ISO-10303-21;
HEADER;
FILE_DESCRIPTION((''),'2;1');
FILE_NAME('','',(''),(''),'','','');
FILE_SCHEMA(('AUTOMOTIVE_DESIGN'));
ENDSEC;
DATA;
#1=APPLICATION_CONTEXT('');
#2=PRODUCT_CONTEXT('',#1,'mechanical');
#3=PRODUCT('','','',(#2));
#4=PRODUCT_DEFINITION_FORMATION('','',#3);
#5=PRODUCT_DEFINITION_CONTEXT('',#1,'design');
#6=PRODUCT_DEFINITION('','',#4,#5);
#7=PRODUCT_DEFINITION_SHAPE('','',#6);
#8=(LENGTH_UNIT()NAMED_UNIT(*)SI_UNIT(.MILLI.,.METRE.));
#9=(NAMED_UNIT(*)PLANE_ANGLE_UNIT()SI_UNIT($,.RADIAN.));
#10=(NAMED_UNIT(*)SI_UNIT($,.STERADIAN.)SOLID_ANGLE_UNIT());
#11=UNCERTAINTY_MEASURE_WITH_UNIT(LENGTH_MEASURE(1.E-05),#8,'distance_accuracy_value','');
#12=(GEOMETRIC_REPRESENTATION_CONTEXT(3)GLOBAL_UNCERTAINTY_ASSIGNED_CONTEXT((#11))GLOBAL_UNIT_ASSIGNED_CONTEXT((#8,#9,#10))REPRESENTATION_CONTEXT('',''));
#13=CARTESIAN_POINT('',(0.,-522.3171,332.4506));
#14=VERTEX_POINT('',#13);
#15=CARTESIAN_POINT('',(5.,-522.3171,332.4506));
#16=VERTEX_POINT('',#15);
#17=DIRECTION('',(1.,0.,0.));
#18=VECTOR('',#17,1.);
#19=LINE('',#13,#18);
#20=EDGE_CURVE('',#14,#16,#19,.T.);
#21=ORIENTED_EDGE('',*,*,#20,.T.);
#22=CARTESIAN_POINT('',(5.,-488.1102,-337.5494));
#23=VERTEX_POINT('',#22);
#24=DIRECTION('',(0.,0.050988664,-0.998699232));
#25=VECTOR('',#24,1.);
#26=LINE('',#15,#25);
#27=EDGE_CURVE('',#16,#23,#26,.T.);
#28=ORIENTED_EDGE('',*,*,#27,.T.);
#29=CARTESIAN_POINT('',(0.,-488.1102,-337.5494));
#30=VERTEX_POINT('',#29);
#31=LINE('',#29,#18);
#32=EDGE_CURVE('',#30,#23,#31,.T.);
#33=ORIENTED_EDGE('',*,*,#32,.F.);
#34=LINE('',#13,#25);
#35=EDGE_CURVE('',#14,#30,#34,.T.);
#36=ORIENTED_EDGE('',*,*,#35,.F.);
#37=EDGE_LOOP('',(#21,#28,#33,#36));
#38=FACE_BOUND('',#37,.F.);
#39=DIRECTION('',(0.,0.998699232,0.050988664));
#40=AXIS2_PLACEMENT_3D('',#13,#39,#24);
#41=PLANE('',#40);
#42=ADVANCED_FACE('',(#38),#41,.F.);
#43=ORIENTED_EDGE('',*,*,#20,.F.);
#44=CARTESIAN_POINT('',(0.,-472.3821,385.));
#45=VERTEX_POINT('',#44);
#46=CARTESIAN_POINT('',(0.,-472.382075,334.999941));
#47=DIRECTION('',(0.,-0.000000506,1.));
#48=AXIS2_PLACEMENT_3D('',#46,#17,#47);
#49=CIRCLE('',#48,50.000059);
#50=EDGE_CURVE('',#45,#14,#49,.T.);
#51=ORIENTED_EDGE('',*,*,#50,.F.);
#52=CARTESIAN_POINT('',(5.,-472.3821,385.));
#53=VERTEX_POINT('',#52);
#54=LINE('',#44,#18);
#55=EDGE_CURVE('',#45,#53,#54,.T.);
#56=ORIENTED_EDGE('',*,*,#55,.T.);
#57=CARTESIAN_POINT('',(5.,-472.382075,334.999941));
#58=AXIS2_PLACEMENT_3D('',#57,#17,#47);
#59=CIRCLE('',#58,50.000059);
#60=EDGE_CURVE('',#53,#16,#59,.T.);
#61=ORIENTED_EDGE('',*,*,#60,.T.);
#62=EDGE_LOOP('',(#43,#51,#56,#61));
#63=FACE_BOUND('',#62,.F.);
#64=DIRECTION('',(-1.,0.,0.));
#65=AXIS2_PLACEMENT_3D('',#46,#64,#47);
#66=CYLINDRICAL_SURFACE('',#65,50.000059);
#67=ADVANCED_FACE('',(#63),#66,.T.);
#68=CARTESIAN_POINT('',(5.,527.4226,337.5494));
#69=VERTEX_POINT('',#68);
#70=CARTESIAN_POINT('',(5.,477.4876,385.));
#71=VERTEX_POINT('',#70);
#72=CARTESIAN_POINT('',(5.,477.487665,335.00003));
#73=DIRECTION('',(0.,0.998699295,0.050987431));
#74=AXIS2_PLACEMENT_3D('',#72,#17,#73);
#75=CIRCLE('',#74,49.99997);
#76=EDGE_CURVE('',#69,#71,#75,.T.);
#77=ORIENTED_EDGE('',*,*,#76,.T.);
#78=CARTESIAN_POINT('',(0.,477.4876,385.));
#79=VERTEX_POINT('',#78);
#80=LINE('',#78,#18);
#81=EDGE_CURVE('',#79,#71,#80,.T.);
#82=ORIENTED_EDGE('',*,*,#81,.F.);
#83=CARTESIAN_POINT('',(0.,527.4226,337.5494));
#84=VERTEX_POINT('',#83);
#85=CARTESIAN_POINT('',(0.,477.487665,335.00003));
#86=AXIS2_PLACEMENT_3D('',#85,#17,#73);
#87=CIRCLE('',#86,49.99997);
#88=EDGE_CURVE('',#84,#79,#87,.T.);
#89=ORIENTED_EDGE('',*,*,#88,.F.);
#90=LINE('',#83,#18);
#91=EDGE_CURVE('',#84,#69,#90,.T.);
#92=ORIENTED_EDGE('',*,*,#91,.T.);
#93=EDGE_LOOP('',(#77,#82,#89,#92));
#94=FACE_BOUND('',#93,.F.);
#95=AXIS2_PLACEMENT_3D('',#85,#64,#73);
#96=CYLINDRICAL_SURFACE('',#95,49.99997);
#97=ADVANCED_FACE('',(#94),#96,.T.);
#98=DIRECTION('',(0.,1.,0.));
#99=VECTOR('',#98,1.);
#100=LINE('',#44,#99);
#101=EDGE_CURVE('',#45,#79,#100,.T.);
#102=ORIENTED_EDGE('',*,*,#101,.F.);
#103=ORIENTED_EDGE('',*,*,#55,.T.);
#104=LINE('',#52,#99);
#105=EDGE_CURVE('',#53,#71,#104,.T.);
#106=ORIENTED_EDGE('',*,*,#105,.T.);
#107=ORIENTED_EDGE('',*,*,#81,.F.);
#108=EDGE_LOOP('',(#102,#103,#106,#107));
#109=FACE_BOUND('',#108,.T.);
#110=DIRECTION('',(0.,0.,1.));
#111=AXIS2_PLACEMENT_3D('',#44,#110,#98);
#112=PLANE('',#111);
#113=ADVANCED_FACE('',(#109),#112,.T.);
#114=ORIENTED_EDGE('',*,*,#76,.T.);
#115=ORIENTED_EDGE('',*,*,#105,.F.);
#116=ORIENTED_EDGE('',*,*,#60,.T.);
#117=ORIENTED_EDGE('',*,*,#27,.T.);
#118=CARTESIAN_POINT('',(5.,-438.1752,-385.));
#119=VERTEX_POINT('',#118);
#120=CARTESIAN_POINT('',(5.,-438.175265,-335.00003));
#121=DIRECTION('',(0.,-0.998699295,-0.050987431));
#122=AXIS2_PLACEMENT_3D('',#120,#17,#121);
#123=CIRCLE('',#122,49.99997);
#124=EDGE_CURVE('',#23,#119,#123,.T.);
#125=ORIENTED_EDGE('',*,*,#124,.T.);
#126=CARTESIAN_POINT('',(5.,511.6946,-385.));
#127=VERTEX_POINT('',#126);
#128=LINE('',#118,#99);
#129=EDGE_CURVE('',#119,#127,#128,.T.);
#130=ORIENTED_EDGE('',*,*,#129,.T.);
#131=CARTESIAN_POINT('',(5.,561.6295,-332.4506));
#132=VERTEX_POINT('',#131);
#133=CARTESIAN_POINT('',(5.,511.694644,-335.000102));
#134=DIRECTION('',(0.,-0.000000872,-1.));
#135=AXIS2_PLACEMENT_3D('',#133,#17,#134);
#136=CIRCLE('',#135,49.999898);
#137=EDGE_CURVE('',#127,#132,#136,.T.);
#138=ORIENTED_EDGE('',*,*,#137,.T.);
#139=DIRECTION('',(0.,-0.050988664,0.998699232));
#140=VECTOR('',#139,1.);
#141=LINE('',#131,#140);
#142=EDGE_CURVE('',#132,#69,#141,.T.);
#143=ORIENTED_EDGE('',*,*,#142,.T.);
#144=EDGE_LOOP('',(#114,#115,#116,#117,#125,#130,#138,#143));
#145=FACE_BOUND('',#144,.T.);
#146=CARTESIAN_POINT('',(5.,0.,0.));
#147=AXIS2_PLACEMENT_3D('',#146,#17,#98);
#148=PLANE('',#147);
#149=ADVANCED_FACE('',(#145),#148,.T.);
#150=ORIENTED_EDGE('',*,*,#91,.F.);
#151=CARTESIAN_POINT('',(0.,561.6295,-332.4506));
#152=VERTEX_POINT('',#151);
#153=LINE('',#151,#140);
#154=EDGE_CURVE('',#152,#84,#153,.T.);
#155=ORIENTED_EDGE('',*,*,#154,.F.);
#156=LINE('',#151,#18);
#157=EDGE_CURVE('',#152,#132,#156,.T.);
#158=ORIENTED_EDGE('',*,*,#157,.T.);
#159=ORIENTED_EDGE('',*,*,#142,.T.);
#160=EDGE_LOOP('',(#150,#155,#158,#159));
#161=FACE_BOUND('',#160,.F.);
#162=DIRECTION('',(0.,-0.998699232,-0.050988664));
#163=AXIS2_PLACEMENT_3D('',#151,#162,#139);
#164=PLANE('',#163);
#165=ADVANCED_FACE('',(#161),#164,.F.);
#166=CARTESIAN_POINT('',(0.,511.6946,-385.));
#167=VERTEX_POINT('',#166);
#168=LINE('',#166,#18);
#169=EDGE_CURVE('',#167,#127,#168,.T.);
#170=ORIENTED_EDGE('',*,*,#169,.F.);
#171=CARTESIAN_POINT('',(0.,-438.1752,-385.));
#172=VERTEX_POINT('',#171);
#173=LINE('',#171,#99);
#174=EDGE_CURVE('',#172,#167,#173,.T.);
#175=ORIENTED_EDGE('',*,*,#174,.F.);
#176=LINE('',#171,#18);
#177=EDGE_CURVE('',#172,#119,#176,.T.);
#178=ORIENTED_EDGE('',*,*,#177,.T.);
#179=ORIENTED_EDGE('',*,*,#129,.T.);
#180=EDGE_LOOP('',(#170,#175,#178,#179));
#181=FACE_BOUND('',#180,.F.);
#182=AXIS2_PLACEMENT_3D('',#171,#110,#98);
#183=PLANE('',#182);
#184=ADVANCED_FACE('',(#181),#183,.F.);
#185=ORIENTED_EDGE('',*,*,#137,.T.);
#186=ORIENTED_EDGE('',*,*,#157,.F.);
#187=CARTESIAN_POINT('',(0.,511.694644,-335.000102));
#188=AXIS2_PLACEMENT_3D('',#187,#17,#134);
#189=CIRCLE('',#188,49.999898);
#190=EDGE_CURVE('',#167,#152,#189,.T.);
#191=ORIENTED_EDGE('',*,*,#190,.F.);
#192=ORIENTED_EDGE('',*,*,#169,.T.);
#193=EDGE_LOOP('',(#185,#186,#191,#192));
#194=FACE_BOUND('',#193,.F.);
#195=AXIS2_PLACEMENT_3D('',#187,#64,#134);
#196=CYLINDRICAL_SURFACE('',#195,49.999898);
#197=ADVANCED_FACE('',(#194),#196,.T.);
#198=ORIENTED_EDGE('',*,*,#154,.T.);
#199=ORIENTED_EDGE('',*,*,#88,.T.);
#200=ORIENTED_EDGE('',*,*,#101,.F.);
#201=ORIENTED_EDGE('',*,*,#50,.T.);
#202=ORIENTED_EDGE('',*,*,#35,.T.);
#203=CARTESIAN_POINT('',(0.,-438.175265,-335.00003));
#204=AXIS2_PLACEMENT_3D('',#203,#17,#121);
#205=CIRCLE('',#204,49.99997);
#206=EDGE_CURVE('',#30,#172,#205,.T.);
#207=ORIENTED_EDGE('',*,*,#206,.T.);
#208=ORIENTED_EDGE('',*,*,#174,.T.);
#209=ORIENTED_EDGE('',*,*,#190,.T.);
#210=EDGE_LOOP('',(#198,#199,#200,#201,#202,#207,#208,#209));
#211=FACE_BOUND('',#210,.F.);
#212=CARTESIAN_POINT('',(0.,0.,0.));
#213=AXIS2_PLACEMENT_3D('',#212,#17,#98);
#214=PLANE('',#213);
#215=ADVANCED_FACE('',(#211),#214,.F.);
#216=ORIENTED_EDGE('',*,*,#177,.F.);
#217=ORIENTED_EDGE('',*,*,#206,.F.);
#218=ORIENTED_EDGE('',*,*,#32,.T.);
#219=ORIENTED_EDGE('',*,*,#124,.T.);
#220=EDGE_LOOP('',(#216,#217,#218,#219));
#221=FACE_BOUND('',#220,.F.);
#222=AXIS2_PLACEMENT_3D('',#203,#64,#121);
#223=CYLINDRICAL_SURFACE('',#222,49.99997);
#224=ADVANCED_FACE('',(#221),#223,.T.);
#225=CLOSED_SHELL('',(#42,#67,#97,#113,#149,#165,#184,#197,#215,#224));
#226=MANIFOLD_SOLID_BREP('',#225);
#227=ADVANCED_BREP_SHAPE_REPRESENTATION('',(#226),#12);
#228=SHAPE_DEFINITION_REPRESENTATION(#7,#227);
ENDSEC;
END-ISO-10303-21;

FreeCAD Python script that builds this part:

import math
import FreeCAD as App
import Part
import Sketcher
from FreeCAD import Vector
Q = App.Units.Quantity

doc = App.newDocument("Part")
body = doc.addObject("PartDesign::Body", "Body")

# Sketch on YZ plane
sketch1 = doc.addObject("Sketcher::SketchObject", "Sketch")
body.addObject(sketch1)
sketch1.AttachmentSupport = (doc.YZ_Plane, [""])
sketch1.MapMode = "FlatFace"
sketch1.addGeometry(Part.ArcOfCircle(Part.Circle(Vector(-472.3821, 335, 0), Vector(0, 0, 1), 50), math.radians(90), math.radians(182.922662)), False)
sketch1.addGeometry(Part.LineSegment(Vector(-522.3171, 332.4506, 0), Vector(-488.1102, -337.5494, 0)), False)
sketch1.addGeometry(Part.ArcOfCircle(Part.Circle(Vector(-438.1752, -335, 0), Vector(0, 0, 1), 50.000037), math.radians(-177.077338), math.radians(-90)), False)
sketch1.addGeometry(Part.LineSegment(Vector(-438.1752, -385, 0), Vector(511.6946, -385, 0)), False)
sketch1.addGeometry(Part.ArcOfCircle(Part.Circle(Vector(511.6946, -335, 0), Vector(0, 0, 1), 50), math.radians(-90), math.radians(2.922668)), False)
sketch1.addGeometry(Part.LineSegment(Vector(561.6295, -332.4506, 0), Vector(527.4226, 337.5494, 0)), False)
sketch1.addGeometry(Part.ArcOfCircle(Part.Circle(Vector(477.4876, 335, 0), Vector(0, 0, 1), 50.000037), math.radians(2.922662), math.radians(90)), False)
sketch1.addGeometry(Part.LineSegment(Vector(477.4876, 385, 0), Vector(-472.3821, 385, 0)), False)
sketch1.addConstraint(Sketcher.Constraint("Coincident", 0, 2, 1, 1))
sketch1.addConstraint(Sketcher.Constraint("Coincident", 1, 2, 2, 1))
sketch1.addConstraint(Sketcher.Constraint("Coincident", 2, 2, 3, 1))
sketch1.addConstraint(Sketcher.Constraint("Coincident", 3, 2, 4, 1))
sketch1.addConstraint(Sketcher.Constraint("Coincident", 4, 2, 5, 1))
sketch1.addConstraint(Sketcher.Constraint("Coincident", 5, 2, 6, 1))
sketch1.addConstraint(Sketcher.Constraint("Coincident", 6, 2, 7, 1))
sketch1.addConstraint(Sketcher.Constraint("Coincident", 7, 2, 0, 1))
sketch1.addConstraint(Sketcher.Constraint("Horizontal", 3))
sketch1.addConstraint(Sketcher.Constraint("Horizontal", 7))
sketch1.addConstraint(Sketcher.Constraint("Radius", 0, Q("1.9685 in")))
sketch1.addConstraint(Sketcher.Constraint("Radius", 2, Q("1.9685 in")))
sketch1.addConstraint(Sketcher.Constraint("Radius", 4, Q("1.9685 in")))
sketch1.addConstraint(Sketcher.Constraint("Radius", 6, Q("1.9685 in")))
sketch1.addConstraint(Sketcher.Constraint("DistanceY", 2, 2, -1, 1, 385.0))
sketch1.addConstraint(Sketcher.Constraint("DistanceY", -1, 1, 6, 2, 385.0))
sketch1.addConstraint(Sketcher.Constraint("DistanceX", 2, 3, -1, 1, Q("17.251 in")))
sketch1.addConstraint(Sketcher.Constraint("DistanceX", 2, 2, -1, 1, Q("17.251 in")))
sketch1.addConstraint(Sketcher.Constraint("Distance", 1, Q("26.4123 in")))
sketch1.addConstraint(Sketcher.Constraint("Distance", 5, Q("26.4123 in")))
sketch1.addConstraint(Sketcher.Constraint("DistanceX", 3, 1, 3, 2, 949.8698))
sketch1.addConstraint(Sketcher.Constraint("DistanceX", 7, 2, 7, 1, 949.8697))
sketch1.addConstraint(Sketcher.Constraint("DistanceY", -1, 1, 0, 2, Q("13.0886 in")))
sketch1.addConstraint(Sketcher.Constraint("DistanceX", -1, 1, 4, 2, Q("22.1114 in")))
sketch1.addConstraint(Sketcher.Constraint("DistanceY", 4, 2, -1, 1, Q("13.0886 in")))
sketch1.addConstraint(Sketcher.Constraint("DistanceX", 0, 2, 6, 3, Q("39.3624 in")))
sketch1.addConstraint(Sketcher.Constraint("DistanceX", 0, 3, -1, 1, 472.382))
sketch1.addConstraint(Sketcher.Constraint("DistanceX", -1, 1, 6, 2, 477.4876))
pad1 = doc.addObject("PartDesign::Pad", "Pad")
body.addObject(pad1)
pad1.Profile = sketch1
pad1.Length = 5

doc.recompute()
